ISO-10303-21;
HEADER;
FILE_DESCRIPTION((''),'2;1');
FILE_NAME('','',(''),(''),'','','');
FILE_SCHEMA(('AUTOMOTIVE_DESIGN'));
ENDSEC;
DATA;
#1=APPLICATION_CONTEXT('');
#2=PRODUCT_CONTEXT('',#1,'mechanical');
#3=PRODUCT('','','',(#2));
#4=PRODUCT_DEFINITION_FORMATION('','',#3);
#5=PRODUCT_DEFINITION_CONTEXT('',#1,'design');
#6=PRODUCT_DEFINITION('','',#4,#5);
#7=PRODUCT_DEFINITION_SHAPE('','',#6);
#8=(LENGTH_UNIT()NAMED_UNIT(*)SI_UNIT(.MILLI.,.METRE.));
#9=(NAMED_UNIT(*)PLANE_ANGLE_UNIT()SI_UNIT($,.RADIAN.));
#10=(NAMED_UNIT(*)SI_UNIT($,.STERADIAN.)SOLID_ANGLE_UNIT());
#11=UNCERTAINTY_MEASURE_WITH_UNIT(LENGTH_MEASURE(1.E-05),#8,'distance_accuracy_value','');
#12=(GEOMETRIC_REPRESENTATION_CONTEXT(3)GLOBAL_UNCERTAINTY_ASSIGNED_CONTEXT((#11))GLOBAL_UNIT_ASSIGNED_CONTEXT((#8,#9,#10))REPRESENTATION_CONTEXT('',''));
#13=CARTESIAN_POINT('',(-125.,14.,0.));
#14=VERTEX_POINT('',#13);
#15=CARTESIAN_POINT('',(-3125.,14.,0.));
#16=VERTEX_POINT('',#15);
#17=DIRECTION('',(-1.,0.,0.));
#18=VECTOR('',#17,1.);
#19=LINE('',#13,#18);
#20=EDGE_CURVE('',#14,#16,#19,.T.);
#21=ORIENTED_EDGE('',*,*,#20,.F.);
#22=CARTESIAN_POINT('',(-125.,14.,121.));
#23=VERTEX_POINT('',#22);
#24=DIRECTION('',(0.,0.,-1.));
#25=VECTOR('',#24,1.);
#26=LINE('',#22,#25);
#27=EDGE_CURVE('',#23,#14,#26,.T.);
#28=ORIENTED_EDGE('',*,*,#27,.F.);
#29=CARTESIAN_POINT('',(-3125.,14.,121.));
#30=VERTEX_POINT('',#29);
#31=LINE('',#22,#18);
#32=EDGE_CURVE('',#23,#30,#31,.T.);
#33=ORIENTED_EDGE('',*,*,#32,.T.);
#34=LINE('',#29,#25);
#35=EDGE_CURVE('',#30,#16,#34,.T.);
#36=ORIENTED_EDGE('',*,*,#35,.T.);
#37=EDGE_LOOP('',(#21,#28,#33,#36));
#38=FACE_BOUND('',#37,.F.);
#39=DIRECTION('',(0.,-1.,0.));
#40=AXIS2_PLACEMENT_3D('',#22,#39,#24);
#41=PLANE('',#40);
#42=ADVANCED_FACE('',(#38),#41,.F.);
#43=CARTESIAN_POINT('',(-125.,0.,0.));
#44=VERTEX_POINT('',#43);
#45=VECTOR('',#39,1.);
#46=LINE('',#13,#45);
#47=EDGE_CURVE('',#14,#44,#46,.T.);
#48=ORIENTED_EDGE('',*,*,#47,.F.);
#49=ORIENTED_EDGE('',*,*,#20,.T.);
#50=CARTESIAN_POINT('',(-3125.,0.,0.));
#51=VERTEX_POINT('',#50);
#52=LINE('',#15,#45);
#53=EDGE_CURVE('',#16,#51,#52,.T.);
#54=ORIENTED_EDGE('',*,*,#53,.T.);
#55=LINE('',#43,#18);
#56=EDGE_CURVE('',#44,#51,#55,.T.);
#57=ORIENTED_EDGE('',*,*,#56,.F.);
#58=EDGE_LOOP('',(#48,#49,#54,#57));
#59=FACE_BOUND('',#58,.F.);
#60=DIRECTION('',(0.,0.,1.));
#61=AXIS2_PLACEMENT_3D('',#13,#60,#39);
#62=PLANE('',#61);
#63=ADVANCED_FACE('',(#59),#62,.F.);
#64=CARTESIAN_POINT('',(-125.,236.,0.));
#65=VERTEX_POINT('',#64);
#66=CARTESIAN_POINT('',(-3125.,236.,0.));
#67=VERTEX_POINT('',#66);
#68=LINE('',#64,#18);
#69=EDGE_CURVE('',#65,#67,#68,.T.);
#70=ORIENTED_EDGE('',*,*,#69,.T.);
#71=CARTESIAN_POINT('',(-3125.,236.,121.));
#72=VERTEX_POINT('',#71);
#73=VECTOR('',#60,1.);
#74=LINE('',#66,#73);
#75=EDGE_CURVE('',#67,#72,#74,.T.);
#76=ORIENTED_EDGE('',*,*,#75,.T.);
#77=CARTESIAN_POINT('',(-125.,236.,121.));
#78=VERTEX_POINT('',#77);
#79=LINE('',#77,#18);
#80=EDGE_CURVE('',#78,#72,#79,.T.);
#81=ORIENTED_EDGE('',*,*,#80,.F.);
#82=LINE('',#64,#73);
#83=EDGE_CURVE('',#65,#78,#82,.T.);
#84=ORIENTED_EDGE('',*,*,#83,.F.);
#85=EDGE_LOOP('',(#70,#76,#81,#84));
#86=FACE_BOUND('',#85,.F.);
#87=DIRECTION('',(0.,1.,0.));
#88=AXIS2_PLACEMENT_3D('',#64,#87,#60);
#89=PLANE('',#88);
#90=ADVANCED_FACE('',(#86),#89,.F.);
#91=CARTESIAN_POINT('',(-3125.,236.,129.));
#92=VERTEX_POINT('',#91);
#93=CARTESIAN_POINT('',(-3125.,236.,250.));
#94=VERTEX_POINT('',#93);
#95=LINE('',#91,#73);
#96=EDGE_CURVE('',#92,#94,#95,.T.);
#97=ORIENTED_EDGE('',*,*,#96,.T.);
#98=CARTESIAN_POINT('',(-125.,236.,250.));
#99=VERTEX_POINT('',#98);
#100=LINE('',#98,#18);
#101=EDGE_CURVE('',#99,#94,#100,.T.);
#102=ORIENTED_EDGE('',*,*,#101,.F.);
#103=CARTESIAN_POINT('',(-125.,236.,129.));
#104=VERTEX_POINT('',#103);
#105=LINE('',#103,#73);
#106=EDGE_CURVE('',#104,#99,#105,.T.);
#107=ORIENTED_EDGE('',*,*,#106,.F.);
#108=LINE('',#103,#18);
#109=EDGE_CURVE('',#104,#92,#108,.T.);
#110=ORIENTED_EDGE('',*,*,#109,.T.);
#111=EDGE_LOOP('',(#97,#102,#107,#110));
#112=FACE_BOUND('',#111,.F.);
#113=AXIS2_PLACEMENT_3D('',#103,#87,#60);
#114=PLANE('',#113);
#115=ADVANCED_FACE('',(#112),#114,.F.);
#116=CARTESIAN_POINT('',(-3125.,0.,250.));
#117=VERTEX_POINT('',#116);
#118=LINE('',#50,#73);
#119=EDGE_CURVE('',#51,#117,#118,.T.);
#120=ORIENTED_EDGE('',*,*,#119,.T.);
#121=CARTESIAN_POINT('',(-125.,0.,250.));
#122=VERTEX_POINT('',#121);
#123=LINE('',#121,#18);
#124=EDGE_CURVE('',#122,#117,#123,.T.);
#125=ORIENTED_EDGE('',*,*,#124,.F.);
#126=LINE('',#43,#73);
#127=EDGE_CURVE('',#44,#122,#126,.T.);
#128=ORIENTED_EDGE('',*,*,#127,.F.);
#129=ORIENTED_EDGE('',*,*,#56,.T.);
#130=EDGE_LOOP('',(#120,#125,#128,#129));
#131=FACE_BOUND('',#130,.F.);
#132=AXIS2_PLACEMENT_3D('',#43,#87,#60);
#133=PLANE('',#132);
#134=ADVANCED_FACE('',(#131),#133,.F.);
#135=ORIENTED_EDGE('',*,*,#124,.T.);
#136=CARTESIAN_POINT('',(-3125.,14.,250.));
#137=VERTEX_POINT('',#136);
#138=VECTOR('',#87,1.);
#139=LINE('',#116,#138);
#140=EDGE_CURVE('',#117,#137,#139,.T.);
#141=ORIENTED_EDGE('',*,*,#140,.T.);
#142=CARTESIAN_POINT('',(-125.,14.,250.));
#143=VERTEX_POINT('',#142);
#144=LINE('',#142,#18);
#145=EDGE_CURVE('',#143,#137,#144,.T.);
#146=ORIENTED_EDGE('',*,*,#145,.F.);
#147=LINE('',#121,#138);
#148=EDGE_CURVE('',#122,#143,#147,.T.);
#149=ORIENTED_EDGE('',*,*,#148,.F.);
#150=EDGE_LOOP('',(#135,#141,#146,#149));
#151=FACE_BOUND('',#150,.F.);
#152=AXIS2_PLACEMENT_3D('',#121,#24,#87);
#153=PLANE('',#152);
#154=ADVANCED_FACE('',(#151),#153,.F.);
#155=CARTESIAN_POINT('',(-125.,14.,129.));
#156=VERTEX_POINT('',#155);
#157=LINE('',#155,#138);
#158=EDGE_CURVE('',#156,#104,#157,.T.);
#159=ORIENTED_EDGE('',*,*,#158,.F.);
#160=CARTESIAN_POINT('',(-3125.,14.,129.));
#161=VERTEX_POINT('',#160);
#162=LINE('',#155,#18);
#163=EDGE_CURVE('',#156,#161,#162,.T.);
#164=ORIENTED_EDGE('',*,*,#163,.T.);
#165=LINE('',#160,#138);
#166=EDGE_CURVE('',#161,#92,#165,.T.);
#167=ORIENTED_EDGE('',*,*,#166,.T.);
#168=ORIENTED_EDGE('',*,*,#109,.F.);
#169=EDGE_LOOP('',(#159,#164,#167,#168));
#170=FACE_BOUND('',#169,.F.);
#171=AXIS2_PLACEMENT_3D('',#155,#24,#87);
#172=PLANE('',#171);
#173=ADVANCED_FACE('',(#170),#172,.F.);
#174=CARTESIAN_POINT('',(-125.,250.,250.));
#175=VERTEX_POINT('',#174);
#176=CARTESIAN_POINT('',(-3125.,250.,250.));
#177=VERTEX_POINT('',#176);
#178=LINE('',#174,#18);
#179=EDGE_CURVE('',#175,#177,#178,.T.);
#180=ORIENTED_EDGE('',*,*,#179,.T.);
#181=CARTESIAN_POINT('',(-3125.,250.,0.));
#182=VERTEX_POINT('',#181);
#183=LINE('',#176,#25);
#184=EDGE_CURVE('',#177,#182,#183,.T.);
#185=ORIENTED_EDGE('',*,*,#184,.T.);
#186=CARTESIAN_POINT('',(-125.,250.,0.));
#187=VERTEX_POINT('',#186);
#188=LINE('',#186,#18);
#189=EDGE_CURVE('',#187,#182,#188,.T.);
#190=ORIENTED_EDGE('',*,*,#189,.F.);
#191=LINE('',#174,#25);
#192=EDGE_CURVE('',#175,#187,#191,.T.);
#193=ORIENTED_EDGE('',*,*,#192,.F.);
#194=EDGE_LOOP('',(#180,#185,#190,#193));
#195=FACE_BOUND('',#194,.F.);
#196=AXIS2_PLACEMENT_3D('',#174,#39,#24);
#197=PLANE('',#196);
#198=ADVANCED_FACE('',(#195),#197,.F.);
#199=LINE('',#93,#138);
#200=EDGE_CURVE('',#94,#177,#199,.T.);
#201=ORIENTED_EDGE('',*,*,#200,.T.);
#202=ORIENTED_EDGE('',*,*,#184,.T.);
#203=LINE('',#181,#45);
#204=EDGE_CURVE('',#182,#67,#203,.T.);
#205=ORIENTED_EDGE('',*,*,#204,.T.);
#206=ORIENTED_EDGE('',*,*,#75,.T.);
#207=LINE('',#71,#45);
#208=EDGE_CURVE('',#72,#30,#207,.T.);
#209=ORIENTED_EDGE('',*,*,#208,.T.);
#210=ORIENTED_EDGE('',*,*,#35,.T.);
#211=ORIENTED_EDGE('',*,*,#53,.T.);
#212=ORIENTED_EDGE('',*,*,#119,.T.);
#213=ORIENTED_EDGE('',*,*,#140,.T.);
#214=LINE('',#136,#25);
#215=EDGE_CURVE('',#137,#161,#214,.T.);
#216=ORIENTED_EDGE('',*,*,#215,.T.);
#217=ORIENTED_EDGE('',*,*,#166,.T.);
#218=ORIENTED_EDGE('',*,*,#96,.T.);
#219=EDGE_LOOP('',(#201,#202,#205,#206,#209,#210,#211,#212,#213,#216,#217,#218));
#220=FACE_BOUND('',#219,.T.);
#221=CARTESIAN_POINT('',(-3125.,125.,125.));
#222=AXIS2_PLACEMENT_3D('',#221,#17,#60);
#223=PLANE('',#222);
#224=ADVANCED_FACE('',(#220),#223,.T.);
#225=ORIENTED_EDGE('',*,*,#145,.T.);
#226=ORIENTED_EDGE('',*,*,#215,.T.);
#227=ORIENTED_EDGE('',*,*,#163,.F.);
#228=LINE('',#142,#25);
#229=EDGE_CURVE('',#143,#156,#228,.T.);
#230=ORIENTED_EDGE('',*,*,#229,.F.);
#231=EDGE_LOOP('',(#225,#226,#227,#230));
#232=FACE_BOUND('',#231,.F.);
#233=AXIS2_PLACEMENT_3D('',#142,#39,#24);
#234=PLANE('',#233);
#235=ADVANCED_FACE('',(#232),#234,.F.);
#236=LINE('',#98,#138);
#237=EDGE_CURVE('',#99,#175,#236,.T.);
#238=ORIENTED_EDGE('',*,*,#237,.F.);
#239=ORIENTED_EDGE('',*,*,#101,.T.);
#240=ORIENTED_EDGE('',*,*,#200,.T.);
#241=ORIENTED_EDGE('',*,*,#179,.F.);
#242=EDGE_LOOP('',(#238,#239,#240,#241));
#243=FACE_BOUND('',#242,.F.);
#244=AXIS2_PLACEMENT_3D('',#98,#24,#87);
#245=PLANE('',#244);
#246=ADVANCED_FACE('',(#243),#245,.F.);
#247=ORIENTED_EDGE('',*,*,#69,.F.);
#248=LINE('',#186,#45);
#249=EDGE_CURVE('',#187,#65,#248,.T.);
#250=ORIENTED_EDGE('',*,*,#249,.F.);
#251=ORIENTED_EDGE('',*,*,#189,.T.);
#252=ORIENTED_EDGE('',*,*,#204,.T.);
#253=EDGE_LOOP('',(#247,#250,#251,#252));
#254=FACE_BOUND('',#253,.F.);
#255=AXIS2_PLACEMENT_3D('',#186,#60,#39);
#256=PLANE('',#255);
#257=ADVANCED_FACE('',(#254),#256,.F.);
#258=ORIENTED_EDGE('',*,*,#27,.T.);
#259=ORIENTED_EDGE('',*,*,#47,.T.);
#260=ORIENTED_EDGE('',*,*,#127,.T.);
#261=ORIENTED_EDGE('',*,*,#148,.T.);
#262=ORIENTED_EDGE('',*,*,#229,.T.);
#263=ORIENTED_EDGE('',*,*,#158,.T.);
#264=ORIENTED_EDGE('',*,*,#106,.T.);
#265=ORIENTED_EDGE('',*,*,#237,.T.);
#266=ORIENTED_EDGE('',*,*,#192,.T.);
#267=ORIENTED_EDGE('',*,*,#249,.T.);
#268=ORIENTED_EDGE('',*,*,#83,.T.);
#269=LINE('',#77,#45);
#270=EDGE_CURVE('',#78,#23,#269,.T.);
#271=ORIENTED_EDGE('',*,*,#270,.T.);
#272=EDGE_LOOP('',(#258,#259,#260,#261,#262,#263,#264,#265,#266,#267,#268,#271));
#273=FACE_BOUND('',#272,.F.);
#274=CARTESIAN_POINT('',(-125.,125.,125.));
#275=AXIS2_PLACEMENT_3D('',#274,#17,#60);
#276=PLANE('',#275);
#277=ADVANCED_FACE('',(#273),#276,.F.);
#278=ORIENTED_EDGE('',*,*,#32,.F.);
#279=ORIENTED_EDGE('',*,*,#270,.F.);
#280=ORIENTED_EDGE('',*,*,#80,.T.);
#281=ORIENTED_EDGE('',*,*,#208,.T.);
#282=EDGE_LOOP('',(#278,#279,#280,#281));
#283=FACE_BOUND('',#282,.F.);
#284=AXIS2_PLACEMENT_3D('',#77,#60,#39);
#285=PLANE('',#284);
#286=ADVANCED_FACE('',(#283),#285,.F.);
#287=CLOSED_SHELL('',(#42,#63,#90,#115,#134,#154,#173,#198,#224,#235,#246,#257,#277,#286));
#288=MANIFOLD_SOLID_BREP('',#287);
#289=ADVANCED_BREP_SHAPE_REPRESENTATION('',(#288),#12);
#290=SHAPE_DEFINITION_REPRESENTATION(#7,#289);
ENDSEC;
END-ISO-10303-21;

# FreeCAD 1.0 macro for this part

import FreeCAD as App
import Part
import Sketcher
from FreeCAD import Vector
Q = App.Units.Quantity

doc = App.newDocument("Part")
body = doc.addObject("PartDesign::Body", "Body")

# Sketch on XY plane
sketch1 = body.newObject("Sketcher::SketchObject", "Sketch")
sketch1.AttachmentSupport = (doc.getObject("XY_Plane"), [""])
sketch1.MapMode = "FlatFace"
sketch1.addGeometry([
    Part.LineSegment(Vector(125, 250, 0), Vector(-125, 250, 0)),  # 0
    Part.LineSegment(Vector(-125, 250, 0), Vector(-125, 236, 0)),  # 1
    Part.LineSegment(Vector(-125, 236, 0), Vector(-4, 236, 0)),  # 2
    Part.LineSegment(Vector(-4, 236, 0), Vector(-4, 14, 0)),  # 3
    Part.LineSegment(Vector(-4, 14, 0), Vector(-125, 14, 0)),  # 4
    Part.LineSegment(Vector(-125, 14, 0), Vector(-125, 0, 0)),  # 5
    Part.LineSegment(Vector(-125, 0, 0), Vector(125, 0, 0)),  # 6
    Part.LineSegment(Vector(125, 0, 0), Vector(125, 14, 0)),  # 7
    Part.LineSegment(Vector(125, 14, 0), Vector(4, 14, 0)),  # 8
    Part.LineSegment(Vector(4, 14, 0), Vector(4, 236, 0)),  # 9
    Part.LineSegment(Vector(4, 236, 0), Vector(125, 236, 0)),  # 10
    Part.LineSegment(Vector(125, 236, 0), Vector(125, 250, 0)),  # 11
], False)
sketch1.addConstraint([
    Sketcher.Constraint("Coincident", 0, 2, 1, 1),
    Sketcher.Constraint("Coincident", 1, 2, 2, 1),
    Sketcher.Constraint("Coincident", 2, 2, 3, 1),
    Sketcher.Constraint("Coincident", 3, 2, 4, 1),
    Sketcher.Constraint("Coincident", 4, 2, 5, 1),
    Sketcher.Constraint("Coincident", 5, 2, 6, 1),
    Sketcher.Constraint("Coincident", 6, 2, 7, 1),
    Sketcher.Constraint("Coincident", 7, 2, 8, 1),
    Sketcher.Constraint("Coincident", 8, 2, 9, 1),
    Sketcher.Constraint("Coincident", 9, 2, 10, 1),
    Sketcher.Constraint("Coincident", 10, 2, 11, 1),
    Sketcher.Constraint("Coincident", 11, 2, 0, 1),
    Sketcher.Constraint("Horizontal", 0),
    Sketcher.Constraint("Vertical", 1),
    Sketcher.Constraint("Horizontal", 2),
    Sketcher.Constraint("Vertical", 3),
    Sketcher.Constraint("Horizontal", 4),
    Sketcher.Constraint("Vertical", 5),
    Sketcher.Constraint("Horizontal", 6),
    Sketcher.Constraint("Vertical", 7),
    Sketcher.Constraint("Horizontal", 8),
    Sketcher.Constraint("Vertical", 9),
    Sketcher.Constraint("Horizontal", 10),
    Sketcher.Constraint("Vertical", 11),
    Sketcher.Constraint("Symmetric", 5, 2, 6, 2, -1, 1),
    Sketcher.Constraint("Symmetric", 3, 2, 8, 2, -2),
    Sketcher.Constraint("Symmetric", 1, 2, 10, 2, -2),
    Sketcher.Constraint("Vertical", 1, 2, 4, 2),
    Sketcher.Constraint("Equal", 1, 5),
    Sketcher.Constraint("DistanceX", 0, 2, 0, 1, Q("250 mm")),
    Sketcher.Constraint("DistanceX", 2, 1, 2, 2, Q("121 mm")),
    Sketcher.Constraint("DistanceY", 1, 2, 1, 1, Q("14 mm")),
    Sketcher.Constraint("DistanceY", 3, 2, 3, 1, Q("222 mm")),
])
pad1 = body.newObject("PartDesign::Pad", "Pad")
pad1.Profile = sketch1
pad1.Length = 3000
body2 = doc.addObject("PartDesign::Body", "Body001")
doc.recompute()

body.Placement = App.Placement(Vector(-125, 0, 125), App.Rotation(Vector(0, -1, 0), 90))
boolean = body2.newObject("PartDesign::Boolean", "Boolean")
boolean.Type = "Fuse"
boolean.addObjects([body])

doc.recompute()
